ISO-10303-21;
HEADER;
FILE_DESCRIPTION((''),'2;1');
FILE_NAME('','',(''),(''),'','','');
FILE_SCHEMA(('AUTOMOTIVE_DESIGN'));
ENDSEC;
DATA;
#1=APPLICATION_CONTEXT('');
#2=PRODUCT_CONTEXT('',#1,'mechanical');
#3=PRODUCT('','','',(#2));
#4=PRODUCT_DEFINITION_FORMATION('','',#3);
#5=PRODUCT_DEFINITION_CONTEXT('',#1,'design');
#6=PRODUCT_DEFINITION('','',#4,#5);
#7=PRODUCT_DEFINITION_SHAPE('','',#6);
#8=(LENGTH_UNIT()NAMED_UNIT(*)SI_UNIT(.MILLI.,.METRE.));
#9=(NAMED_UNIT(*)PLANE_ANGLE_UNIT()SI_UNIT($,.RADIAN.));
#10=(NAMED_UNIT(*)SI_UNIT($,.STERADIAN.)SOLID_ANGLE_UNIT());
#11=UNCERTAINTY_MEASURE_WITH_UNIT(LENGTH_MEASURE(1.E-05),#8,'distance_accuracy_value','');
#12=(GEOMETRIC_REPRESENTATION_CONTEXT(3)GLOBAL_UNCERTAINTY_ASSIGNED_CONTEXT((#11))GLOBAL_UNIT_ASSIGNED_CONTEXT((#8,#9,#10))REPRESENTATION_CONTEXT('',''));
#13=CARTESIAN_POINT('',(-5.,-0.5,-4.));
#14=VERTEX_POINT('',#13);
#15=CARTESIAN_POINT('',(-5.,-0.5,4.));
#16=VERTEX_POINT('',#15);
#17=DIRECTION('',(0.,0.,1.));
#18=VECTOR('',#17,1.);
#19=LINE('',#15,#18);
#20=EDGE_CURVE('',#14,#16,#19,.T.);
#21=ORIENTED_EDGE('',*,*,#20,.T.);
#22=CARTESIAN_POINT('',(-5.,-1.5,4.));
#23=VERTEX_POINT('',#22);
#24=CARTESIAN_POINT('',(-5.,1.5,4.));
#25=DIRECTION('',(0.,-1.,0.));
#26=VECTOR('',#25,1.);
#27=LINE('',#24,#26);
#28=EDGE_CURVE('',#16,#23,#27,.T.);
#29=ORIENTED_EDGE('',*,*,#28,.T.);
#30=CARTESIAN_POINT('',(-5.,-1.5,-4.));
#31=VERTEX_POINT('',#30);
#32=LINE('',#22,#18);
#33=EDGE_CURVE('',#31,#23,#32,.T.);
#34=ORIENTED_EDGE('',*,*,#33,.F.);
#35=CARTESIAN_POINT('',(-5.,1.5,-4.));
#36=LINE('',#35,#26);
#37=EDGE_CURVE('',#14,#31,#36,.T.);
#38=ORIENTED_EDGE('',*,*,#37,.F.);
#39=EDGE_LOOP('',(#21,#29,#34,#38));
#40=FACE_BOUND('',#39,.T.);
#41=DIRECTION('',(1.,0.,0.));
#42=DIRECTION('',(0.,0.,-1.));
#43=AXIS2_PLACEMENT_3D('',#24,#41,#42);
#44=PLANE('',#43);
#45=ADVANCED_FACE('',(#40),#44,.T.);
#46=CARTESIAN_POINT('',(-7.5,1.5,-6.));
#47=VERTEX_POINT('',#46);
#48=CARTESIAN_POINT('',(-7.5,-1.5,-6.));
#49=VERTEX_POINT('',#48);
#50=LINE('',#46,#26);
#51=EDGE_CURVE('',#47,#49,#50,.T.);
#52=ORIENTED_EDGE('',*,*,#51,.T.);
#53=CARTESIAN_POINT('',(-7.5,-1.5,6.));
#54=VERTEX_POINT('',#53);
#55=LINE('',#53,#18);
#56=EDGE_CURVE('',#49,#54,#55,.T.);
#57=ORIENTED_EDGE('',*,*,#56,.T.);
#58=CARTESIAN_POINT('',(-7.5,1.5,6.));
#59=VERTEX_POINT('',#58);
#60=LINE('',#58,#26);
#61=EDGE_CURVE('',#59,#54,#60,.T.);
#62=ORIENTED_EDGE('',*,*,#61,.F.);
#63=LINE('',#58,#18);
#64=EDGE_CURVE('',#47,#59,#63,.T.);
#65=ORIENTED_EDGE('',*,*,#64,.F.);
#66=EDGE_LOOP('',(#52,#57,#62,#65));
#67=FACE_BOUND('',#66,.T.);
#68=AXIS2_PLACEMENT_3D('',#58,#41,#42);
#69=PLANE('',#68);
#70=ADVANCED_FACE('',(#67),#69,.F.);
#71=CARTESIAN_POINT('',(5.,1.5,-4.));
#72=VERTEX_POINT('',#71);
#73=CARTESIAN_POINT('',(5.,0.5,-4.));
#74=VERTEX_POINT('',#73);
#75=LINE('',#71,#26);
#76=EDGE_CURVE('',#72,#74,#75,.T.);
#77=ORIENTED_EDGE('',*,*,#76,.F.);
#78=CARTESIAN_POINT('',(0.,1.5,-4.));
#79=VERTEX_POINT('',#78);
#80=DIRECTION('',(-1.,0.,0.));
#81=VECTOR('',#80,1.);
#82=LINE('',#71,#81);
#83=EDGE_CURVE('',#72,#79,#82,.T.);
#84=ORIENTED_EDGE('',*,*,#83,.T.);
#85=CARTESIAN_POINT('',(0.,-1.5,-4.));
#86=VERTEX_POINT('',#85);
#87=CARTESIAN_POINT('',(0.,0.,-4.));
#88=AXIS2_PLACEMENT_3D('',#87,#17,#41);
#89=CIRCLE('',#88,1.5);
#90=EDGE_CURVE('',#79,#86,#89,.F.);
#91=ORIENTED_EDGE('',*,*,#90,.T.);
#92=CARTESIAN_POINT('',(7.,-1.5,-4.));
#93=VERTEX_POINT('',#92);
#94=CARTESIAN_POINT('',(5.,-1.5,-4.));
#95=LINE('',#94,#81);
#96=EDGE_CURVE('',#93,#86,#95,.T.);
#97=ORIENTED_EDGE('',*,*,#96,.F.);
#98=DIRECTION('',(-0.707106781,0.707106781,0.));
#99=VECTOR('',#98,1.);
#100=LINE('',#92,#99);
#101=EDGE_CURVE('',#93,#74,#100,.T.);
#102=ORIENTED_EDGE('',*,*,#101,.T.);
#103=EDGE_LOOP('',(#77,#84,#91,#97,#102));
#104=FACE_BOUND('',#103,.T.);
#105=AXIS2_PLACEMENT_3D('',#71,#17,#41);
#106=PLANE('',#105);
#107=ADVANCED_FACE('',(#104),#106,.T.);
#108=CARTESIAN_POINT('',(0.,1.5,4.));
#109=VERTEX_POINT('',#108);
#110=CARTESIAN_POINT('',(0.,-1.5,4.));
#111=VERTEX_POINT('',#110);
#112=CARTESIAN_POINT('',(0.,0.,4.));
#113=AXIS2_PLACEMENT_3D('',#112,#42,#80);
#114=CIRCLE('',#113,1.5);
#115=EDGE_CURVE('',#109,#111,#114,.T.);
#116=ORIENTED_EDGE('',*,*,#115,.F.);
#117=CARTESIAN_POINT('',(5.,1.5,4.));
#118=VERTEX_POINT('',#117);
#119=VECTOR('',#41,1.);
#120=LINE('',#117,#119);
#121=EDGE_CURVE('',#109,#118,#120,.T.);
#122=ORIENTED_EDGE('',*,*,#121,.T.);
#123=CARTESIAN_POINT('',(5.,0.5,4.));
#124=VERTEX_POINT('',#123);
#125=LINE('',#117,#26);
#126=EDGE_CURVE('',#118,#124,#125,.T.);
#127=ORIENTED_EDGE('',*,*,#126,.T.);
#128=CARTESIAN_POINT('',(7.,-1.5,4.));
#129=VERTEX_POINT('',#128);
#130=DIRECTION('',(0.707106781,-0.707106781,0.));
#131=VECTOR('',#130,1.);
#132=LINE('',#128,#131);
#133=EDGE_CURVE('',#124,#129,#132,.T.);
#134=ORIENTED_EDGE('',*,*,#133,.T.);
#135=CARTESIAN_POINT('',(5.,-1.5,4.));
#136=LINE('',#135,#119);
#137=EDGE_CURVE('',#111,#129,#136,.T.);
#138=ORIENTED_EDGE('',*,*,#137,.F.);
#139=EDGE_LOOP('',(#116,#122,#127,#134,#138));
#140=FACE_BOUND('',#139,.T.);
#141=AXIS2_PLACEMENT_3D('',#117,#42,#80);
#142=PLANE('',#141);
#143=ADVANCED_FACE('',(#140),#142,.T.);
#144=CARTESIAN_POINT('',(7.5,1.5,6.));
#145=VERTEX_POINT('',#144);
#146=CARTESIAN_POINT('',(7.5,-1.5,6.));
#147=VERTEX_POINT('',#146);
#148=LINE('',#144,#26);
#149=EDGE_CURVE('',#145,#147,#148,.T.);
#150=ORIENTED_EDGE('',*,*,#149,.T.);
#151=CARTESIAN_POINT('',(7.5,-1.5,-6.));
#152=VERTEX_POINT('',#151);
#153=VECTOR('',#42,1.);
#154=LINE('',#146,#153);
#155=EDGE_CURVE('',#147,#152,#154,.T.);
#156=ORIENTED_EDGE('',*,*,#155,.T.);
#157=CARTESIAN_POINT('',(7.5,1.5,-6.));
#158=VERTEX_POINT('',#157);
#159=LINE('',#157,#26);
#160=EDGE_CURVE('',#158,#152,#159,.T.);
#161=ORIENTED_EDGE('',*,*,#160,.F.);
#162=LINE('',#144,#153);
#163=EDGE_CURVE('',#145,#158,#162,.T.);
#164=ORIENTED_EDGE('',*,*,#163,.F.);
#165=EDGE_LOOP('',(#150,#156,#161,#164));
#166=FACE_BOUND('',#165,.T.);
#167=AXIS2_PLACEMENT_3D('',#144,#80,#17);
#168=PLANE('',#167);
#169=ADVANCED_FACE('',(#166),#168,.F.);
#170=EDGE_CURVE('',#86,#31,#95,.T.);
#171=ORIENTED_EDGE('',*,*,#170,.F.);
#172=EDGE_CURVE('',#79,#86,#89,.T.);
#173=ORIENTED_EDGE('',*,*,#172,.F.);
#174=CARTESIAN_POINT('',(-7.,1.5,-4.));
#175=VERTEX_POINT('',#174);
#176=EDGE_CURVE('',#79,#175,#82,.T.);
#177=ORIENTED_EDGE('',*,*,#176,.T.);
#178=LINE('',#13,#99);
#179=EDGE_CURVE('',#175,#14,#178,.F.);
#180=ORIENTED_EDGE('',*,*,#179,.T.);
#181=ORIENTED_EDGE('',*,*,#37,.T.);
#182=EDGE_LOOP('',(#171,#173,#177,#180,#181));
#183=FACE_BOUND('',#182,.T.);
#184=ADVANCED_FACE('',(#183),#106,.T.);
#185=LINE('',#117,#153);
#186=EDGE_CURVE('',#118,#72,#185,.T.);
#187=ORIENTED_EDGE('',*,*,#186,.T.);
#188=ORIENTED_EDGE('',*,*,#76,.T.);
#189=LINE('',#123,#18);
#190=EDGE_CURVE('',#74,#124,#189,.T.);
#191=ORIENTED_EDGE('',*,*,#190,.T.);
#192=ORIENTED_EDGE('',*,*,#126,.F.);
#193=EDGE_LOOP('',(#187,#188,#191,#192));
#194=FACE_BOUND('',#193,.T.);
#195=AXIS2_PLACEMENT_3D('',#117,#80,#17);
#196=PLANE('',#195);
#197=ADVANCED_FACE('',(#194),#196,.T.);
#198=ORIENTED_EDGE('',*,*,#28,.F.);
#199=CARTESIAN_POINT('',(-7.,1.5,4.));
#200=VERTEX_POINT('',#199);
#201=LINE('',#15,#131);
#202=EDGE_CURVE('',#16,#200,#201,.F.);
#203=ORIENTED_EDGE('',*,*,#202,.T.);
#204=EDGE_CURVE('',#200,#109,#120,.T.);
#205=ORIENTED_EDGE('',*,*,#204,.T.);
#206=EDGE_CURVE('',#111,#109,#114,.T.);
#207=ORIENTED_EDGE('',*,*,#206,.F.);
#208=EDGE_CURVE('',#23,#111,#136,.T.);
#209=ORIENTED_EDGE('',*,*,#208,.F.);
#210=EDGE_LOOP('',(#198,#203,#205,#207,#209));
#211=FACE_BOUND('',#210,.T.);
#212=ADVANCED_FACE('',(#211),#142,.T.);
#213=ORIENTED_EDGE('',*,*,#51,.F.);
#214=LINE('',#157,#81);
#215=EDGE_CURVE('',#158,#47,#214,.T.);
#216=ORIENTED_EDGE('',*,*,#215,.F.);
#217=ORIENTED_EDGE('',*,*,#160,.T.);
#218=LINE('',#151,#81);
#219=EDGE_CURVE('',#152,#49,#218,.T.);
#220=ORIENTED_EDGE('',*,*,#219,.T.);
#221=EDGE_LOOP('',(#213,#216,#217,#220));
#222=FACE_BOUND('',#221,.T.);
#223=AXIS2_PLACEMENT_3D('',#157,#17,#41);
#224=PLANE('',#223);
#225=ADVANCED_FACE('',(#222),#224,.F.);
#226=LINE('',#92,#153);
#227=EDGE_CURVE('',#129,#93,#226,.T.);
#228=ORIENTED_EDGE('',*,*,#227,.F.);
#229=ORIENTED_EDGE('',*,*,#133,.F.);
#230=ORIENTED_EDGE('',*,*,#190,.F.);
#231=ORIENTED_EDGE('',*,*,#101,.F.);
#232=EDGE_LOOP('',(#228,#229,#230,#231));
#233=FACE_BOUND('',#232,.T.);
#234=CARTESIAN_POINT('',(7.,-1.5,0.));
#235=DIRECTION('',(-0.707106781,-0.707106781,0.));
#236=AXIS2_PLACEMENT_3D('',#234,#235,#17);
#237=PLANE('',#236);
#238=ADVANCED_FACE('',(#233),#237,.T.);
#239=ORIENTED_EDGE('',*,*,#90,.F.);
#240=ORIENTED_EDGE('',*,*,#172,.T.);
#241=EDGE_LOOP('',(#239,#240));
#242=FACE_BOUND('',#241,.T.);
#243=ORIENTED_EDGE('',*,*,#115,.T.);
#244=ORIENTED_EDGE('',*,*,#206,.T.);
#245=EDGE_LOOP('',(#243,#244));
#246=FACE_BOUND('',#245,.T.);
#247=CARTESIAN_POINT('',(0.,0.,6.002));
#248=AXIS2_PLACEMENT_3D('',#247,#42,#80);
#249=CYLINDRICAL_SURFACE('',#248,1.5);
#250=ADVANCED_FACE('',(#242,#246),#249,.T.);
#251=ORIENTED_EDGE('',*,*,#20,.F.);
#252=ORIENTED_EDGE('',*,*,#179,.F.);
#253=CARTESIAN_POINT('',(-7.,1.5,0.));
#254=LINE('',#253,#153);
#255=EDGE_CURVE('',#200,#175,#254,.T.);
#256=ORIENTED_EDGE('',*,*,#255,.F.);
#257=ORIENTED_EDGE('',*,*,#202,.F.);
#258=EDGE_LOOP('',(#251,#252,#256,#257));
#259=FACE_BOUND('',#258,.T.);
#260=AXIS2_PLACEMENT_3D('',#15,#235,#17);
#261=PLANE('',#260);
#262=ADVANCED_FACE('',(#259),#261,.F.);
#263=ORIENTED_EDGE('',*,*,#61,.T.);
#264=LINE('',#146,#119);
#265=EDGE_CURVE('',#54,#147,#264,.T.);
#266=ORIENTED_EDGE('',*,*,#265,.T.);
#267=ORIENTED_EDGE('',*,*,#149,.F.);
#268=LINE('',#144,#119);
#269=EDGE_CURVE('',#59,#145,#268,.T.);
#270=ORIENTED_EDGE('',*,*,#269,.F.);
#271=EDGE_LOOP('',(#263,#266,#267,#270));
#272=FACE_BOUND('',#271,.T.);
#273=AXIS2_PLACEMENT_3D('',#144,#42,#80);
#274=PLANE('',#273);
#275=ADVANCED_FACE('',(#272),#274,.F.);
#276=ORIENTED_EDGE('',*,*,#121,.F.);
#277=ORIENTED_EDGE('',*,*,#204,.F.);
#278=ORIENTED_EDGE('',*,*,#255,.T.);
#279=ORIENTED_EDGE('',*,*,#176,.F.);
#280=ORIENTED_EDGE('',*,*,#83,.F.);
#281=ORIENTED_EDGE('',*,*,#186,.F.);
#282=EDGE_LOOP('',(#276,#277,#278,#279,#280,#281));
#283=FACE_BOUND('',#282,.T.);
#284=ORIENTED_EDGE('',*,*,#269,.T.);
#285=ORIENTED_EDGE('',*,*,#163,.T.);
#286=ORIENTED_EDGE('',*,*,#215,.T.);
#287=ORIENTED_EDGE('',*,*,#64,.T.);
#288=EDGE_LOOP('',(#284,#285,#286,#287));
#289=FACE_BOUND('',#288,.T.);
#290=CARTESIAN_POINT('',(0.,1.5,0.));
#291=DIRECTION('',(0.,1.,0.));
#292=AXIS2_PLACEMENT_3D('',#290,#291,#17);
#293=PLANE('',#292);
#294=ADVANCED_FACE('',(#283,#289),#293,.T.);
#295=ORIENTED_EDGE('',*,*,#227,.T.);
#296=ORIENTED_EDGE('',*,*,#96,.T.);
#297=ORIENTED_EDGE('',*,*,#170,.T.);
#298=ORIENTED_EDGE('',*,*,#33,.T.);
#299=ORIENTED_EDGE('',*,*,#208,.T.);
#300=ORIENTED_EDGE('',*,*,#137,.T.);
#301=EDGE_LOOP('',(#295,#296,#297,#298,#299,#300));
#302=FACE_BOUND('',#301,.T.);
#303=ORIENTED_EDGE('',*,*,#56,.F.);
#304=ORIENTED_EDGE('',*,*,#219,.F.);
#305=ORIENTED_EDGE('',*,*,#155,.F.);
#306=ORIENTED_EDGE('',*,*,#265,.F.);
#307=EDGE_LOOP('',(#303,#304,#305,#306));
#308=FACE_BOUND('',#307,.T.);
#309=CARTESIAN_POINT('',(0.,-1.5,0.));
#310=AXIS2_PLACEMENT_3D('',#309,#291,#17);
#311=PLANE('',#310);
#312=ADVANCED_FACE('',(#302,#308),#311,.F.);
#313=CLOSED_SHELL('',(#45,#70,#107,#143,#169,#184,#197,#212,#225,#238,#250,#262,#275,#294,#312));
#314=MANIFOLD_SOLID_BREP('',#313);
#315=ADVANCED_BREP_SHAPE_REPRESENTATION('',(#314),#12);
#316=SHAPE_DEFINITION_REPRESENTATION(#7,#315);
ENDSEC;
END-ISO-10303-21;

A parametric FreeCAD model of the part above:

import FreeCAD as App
import Part
import Sketcher
from FreeCAD import Vector
Q = App.Units.Quantity


def edges_at(feature, points):
    """Names of the edges that pass closest to the given points."""
    edges = feature.Shape.Edges
    near = lambda p: min(range(len(edges)), key=lambda i: edges[i].distToShape(Part.Vertex(*p))[0])
    return sorted({f"Edge{near(p) + 1}" for p in points})


def add_polygon(sketch, points):
    """Adds a closed chain of lines whose ends are joined by coincident constraints."""
    first, n = sketch.GeometryCount, len(points)
    for a, b in zip(points, points[1:] + points[:1]):
        sketch.addGeometry(Part.LineSegment(App.Vector(*a, 0), App.Vector(*b, 0)), False)
    for i in range(n):
        sketch.addConstraint(Sketcher.Constraint("Coincident", first + i, 2, first + (i + 1) % n, 1))

doc = App.newDocument("Part")
body = doc.addObject("PartDesign::Body", "Body")

# Sketch on XZ plane
sketch1 = doc.addObject("Sketcher::SketchObject", "Sketch")
body.addObject(sketch1)
sketch1.AttachmentSupport = (doc.XZ_Plane, [""])
sketch1.MapMode = "FlatFace"
add_polygon(sketch1, [(-8, -6), (-8, 6), (8, 6), (8, -6)])  # lines 0-3
add_polygon(sketch1, [(5, 4), (-5, 4), (-5, -4), (5, -4)])  # lines 4-7
sketch1.addConstraint([
    Sketcher.Constraint("Vertical", 0),
    Sketcher.Constraint("Horizontal", 1),
    Sketcher.Constraint("Vertical", 2),
    Sketcher.Constraint("Horizontal", 3),
    Sketcher.Constraint("Horizontal", 4),
    Sketcher.Constraint("Vertical", 5),
    Sketcher.Constraint("Horizontal", 6),
    Sketcher.Constraint("Vertical", 7),
    Sketcher.Constraint("Symmetric", 0, 2, 2, 2, -1, 1),
    Sketcher.Constraint("Symmetric", 4, 2, 6, 2, -1, 1),
    Sketcher.Constraint("DistanceX", 1, 1, 1, 2, Q("15 mm")),
    Sketcher.Constraint("DistanceX", 4, 2, 4, 1, Q("10 mm")),
    Sketcher.Constraint("DistanceY", 0, 1, 0, 2, Q("12 mm")),
    Sketcher.Constraint("DistanceY", 5, 2, 5, 1, Q("8 mm")),
])
pad1 = doc.addObject("PartDesign::Pad", "Pad")
body.addObject(pad1)
pad1.Profile = sketch1
pad1.Length = 3
pad1.Midplane = True

# Sketch on XY plane
sketch2 = doc.addObject("Sketcher::SketchObject", "Sketch001")
body.addObject(sketch2)
sketch2.AttachmentSupport = (doc.XY_Plane, [""])
sketch2.MapMode = "FlatFace"
sketch2.AttachmentOffset = App.Placement(Vector(0, 0, -4), App.Rotation())
sketch2.addGeometry(Part.Circle(Vector(0, 0, 0), Vector(0, 0, 1), 1.5), False)
sketch2.addConstraint([
    Sketcher.Constraint("Coincident", 0, 3, -1, 1),
    Sketcher.Constraint("Diameter", 0, Q("3 mm")),
])
pad2 = doc.addObject("PartDesign::Pad", "Pad001")
body.addObject(pad2)
pad2.Profile = sketch2
pad2.Type = "UpToFirst"
doc.recompute()

chamfer = doc.addObject("PartDesign::Chamfer", "Chamfer")
body.addObject(chamfer)
chamfer.Base = (pad2, edges_at(pad2, [(5, -1.5, 0)]))
chamfer.Size = 2
doc.recompute()

chamfer2 = doc.addObject("PartDesign::Chamfer", "Chamfer001")
body.addObject(chamfer2)
chamfer2.Base = (chamfer, edges_at(chamfer, [(-5, 1.5, 0)]))
chamfer2.Size = 2

doc.recompute()
